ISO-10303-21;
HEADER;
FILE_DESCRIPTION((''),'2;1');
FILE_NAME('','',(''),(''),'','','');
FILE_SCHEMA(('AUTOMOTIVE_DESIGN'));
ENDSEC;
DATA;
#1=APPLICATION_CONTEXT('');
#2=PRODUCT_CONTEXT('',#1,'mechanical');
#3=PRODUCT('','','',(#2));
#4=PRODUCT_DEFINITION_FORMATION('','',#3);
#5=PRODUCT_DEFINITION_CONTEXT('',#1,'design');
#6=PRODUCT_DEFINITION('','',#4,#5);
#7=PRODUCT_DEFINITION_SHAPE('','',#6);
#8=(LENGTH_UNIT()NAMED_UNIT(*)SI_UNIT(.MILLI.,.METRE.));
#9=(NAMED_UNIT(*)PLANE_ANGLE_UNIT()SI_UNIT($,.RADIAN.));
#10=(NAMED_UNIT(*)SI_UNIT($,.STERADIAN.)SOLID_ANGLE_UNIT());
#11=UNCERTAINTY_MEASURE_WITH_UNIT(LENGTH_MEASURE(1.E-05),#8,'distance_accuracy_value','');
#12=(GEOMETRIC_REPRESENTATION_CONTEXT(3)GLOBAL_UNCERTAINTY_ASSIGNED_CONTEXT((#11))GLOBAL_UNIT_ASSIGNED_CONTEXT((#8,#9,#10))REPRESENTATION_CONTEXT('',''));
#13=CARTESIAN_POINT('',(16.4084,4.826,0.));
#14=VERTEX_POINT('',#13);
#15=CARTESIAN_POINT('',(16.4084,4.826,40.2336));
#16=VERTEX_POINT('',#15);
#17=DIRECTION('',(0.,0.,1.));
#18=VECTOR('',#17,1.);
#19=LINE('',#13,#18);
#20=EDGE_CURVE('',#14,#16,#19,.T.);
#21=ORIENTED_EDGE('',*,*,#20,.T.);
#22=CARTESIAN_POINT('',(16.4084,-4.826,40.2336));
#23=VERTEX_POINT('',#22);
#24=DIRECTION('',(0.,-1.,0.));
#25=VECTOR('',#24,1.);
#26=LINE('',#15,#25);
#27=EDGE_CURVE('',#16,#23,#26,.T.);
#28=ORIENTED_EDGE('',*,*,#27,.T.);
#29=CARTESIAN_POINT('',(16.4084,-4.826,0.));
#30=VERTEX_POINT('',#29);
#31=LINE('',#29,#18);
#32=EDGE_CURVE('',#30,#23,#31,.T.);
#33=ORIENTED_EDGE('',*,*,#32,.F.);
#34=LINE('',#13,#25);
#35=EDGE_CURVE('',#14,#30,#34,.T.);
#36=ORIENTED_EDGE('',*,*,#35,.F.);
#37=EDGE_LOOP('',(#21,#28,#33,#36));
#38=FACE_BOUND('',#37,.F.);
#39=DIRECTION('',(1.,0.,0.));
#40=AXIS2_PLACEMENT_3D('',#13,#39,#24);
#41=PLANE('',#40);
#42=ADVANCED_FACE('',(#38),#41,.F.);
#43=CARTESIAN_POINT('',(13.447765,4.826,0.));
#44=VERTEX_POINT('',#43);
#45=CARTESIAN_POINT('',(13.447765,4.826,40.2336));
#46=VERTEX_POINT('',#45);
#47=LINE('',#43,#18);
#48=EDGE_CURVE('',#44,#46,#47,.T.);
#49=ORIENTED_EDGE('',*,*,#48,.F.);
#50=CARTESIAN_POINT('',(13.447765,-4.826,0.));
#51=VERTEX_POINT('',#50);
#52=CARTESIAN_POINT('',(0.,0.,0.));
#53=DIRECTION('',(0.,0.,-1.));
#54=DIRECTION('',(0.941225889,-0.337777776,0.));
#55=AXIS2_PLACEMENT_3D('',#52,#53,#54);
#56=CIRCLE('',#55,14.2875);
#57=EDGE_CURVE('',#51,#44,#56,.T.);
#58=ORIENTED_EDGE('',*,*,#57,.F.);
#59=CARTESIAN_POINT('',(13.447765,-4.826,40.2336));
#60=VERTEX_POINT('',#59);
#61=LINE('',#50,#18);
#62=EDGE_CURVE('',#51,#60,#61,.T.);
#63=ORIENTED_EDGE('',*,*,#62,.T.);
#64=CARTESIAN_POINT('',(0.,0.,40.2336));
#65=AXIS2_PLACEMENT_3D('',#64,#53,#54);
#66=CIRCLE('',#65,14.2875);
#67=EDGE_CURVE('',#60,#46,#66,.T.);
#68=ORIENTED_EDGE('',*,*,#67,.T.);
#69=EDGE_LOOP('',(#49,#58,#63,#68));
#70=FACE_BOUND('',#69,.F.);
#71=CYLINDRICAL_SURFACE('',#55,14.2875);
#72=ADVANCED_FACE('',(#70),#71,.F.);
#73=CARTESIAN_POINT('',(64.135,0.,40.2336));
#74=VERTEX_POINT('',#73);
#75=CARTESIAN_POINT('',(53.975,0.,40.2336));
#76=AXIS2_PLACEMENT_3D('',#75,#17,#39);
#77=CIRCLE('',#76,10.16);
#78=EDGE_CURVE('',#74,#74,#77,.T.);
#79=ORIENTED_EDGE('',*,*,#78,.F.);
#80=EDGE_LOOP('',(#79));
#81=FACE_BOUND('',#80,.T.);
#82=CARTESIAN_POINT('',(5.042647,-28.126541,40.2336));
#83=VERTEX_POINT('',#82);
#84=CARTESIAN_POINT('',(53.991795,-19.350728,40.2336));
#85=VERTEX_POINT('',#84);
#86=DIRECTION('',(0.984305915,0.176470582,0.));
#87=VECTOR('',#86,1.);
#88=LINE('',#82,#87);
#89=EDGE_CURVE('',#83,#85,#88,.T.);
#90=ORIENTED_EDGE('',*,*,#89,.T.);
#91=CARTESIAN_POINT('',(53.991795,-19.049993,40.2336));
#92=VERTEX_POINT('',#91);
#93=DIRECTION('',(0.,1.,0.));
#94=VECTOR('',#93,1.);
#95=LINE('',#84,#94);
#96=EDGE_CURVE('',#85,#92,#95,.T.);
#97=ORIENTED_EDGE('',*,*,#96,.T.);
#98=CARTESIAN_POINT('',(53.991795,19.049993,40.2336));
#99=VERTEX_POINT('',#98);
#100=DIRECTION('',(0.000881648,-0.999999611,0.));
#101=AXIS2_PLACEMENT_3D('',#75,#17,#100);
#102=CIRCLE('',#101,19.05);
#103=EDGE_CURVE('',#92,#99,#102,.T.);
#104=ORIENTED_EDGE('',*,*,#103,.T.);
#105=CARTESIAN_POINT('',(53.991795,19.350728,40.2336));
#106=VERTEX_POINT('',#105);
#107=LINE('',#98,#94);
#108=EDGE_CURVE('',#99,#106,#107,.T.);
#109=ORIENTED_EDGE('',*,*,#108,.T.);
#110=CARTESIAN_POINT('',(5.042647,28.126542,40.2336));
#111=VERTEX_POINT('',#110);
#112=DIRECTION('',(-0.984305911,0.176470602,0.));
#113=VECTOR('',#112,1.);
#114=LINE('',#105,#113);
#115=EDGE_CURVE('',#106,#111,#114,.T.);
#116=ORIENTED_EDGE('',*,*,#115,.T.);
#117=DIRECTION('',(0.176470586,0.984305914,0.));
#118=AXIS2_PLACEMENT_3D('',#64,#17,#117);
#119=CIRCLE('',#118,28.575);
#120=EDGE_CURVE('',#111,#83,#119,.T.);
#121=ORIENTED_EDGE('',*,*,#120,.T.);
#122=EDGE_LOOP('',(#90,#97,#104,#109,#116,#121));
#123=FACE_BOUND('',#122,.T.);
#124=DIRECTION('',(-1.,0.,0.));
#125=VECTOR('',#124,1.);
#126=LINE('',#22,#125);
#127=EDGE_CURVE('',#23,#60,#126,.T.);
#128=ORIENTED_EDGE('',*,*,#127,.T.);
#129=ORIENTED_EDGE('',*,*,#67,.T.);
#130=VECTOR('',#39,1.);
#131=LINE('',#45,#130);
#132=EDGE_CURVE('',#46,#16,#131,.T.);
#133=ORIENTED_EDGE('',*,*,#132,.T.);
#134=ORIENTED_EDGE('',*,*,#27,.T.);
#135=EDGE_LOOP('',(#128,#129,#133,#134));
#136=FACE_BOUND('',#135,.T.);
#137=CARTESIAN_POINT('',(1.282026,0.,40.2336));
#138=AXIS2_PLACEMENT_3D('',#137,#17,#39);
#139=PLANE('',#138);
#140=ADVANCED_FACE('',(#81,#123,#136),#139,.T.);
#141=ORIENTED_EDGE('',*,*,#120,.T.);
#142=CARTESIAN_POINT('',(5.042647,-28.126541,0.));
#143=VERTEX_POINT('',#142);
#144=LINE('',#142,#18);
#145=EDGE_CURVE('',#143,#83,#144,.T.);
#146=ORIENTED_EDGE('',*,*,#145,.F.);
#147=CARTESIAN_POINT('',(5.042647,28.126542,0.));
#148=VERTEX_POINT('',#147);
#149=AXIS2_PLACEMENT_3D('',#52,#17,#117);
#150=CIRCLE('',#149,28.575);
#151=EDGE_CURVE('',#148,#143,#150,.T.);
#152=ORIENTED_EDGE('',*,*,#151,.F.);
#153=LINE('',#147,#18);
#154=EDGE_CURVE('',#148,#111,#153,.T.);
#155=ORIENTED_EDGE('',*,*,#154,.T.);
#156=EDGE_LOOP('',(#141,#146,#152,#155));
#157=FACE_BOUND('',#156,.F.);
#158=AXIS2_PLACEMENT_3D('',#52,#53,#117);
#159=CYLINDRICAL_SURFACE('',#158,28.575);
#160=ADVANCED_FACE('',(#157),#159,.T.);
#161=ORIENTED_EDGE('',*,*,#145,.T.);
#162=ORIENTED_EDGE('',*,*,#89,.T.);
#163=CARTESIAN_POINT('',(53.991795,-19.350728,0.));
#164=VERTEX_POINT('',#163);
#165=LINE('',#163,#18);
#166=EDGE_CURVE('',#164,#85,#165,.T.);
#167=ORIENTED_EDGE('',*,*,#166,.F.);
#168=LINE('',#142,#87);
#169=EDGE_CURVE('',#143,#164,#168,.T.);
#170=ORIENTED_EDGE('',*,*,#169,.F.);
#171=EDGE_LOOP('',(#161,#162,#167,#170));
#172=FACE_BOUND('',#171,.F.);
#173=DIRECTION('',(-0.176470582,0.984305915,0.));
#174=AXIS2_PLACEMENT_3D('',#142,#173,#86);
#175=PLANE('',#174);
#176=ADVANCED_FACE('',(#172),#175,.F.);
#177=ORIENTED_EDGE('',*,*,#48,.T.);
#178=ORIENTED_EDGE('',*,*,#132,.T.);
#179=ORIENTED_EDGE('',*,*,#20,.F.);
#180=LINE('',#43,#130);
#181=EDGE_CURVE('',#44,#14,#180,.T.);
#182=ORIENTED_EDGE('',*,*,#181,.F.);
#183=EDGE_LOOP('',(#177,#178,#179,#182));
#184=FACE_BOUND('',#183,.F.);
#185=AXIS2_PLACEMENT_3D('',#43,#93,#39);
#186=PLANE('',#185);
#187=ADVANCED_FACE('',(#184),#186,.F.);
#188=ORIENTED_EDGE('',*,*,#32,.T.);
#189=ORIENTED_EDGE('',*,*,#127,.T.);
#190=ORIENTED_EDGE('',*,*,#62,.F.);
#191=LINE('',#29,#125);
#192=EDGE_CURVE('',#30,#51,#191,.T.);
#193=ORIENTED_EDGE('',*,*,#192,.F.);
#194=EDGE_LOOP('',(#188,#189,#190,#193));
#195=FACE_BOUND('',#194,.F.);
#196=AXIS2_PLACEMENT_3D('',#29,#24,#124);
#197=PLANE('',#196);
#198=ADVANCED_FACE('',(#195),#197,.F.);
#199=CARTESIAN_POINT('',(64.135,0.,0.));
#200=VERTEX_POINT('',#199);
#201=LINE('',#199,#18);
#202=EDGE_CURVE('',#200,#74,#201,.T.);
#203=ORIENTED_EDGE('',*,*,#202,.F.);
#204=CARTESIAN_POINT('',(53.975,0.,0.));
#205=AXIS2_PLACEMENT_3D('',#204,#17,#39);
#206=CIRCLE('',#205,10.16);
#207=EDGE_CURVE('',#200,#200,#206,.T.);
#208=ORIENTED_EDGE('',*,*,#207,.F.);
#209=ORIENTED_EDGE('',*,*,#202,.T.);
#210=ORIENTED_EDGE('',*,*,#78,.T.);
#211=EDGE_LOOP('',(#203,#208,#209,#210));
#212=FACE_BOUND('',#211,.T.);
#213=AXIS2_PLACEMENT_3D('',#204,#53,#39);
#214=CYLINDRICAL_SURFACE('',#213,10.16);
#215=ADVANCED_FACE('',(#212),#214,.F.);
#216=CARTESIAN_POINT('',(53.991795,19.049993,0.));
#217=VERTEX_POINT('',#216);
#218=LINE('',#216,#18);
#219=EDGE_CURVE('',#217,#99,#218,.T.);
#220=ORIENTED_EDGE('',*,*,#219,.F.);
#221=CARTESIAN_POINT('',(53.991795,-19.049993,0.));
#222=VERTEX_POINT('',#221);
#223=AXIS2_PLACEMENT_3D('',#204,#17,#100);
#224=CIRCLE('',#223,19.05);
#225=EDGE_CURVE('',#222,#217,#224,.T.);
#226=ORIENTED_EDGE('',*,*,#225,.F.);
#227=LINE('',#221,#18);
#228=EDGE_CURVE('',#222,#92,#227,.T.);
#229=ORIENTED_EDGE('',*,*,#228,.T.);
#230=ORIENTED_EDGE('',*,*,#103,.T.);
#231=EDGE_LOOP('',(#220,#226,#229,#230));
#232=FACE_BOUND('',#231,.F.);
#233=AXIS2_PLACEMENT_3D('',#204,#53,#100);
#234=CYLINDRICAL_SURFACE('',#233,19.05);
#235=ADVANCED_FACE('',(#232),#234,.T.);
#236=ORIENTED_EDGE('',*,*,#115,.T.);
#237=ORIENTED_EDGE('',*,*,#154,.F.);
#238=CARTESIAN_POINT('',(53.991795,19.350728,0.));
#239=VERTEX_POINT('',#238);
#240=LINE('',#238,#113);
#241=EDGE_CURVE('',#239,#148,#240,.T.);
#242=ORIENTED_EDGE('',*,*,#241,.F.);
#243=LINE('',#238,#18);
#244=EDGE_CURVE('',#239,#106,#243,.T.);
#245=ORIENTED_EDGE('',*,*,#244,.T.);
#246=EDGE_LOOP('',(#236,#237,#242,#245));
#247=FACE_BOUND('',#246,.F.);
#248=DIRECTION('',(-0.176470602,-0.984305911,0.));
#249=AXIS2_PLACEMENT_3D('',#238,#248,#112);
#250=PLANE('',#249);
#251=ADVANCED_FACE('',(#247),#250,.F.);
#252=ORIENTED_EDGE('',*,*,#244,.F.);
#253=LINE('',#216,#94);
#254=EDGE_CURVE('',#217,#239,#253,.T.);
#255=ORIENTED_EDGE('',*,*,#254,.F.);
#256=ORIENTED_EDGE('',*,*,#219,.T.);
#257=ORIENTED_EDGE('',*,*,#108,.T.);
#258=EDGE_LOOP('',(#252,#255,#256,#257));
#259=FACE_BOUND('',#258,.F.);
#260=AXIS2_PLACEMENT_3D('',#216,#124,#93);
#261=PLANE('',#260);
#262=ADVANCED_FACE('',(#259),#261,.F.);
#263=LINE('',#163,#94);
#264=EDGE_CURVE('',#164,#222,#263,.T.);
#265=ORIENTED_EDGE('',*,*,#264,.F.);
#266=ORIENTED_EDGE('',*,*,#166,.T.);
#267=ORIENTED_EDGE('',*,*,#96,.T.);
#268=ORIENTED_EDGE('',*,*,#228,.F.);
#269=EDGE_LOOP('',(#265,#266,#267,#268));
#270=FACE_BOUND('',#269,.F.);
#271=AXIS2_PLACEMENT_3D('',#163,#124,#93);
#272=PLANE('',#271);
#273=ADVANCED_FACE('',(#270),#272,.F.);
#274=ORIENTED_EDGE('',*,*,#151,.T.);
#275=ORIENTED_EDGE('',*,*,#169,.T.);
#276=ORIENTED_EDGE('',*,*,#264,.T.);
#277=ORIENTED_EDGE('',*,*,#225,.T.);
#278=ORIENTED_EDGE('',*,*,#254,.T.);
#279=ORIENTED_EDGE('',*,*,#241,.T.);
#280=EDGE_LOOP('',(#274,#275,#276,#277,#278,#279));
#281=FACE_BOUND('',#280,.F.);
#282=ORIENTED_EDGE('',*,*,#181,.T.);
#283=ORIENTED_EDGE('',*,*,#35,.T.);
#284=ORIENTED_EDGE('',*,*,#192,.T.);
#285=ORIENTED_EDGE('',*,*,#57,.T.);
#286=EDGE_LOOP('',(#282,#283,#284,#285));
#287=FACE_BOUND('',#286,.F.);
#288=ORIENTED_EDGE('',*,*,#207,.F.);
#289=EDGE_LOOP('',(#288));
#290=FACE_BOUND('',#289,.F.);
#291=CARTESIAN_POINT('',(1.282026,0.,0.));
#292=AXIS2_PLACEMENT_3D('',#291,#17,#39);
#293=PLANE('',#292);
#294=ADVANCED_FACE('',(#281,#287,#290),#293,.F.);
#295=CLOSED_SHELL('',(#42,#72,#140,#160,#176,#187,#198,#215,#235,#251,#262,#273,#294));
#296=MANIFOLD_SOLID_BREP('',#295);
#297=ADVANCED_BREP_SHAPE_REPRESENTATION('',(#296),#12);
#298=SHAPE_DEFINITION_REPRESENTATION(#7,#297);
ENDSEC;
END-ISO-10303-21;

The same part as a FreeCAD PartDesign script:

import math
import FreeCAD as App
import Part
import Sketcher
Q = App.Units.Quantity

doc = App.newDocument("Part")
body = doc.addObject("PartDesign::Body", "Body")

sketch1 = body.newObject("Sketcher::SketchObject", "Sketch")
sketch1.AttachmentSupport = (doc.getObject("XY_Plane"), [""])
sketch1.MapMode = "FlatFace"
sketch1.addGeometry([
    Part.ArcOfCircle(Part.Circle(App.Vector(0, 0, 0), App.Vector(0, 0, 1), 28.58), math.radians(80), math.radians(280)),
    Part.LineSegment(App.Vector(5.04, -28.13, 0), App.Vector(53.99, -19.35, 0)),
    Part.LineSegment(App.Vector(53.99, -19.35, 0), App.Vector(53.99, -19.05, 0)),
    Part.ArcOfCircle(Part.Circle(App.Vector(53.97, 0, 0), App.Vector(0, 0, 1), 19.05), math.radians(-90), math.radians(90)),
    Part.LineSegment(App.Vector(53.99, 19.05, 0), App.Vector(53.99, 19.35, 0)),
    Part.LineSegment(App.Vector(53.99, 19.35, 0), App.Vector(5.04, 28.13, 0)),
    Part.LineSegment(App.Vector(16.41, -4.83, 0), App.Vector(13.45, -4.83, 0)),
    Part.ArcOfCircle(Part.Circle(App.Vector(0, 0, 0), App.Vector(0, 0, 1), 14.29), math.radians(20), math.radians(340)),
    Part.LineSegment(App.Vector(13.45, 4.83, 0), App.Vector(16.41, 4.83, 0)),
    Part.LineSegment(App.Vector(16.41, 4.83, 0), App.Vector(16.41, -4.83, 0)),
    Part.Circle(App.Vector(53.98, 0, 0), App.Vector(0, 0, 1), 10.16),
], False)
sketch1.addConstraint([
    Sketcher.Constraint("Tangent", 0, 2, 1, 1),
    Sketcher.Constraint("Coincident", 1, 2, 2, 1),
    Sketcher.Constraint("Coincident", 2, 2, 3, 1),
    Sketcher.Constraint("Coincident", 3, 2, 4, 1),
    Sketcher.Constraint("Coincident", 4, 2, 5, 1),
    Sketcher.Constraint("Tangent", 5, 2, 0, 1),
    Sketcher.Constraint("Coincident", 6, 2, 7, 2),
    Sketcher.Constraint("Coincident", 7, 1, 8, 1),
    Sketcher.Constraint("Coincident", 8, 2, 9, 1),
    Sketcher.Constraint("Coincident", 9, 2, 6, 1),
    Sketcher.Constraint("Vertical", 2),
    Sketcher.Constraint("Vertical", 4),
    Sketcher.Constraint("Horizontal", 6),
    Sketcher.Constraint("Horizontal", 8),
    Sketcher.Constraint("Vertical", 9),
    Sketcher.Constraint("Coincident", 0, 3, -1, 1),
    Sketcher.Constraint("Coincident", 7, 3, -1, 1),
    Sketcher.Constraint("Coincident", 10, 3, 3, 3),
    Sketcher.Constraint("Symmetric", 2, 2, 3, 2, -1),
    Sketcher.Constraint("Vertical", 0, 2, 5, 2),
    Sketcher.Constraint("Vertical", 6, 2, 7, 1),
    Sketcher.Constraint("Diameter", 10, Q("0.8 in")),
    Sketcher.Constraint("Radius", 3, Q("0.75 in")),
    Sketcher.Constraint("Radius", 0, Q("1.125 in")),
    Sketcher.Constraint("Radius", 7, Q("0.5625 in")),
    Sketcher.Constraint("DistanceY", 9, 2, 9, 1, Q("0.38 in")),
    Sketcher.Constraint("DistanceX", -1, 1, 3, 3, Q("2.125 in")),
    Sketcher.Constraint("DistanceX", -1, 1, 8, 2, Q("0.646 in")),
    Sketcher.Constraint("Distance", 1, 49.729609),
    Sketcher.Constraint("DistanceY", 2, 1, 2, 2, 0.300735),
])
pad1 = body.newObject("PartDesign::Pad", "Pad")
pad1.Profile = sketch1
pad1.Length = Q("1.584 in")

doc.recompute()
